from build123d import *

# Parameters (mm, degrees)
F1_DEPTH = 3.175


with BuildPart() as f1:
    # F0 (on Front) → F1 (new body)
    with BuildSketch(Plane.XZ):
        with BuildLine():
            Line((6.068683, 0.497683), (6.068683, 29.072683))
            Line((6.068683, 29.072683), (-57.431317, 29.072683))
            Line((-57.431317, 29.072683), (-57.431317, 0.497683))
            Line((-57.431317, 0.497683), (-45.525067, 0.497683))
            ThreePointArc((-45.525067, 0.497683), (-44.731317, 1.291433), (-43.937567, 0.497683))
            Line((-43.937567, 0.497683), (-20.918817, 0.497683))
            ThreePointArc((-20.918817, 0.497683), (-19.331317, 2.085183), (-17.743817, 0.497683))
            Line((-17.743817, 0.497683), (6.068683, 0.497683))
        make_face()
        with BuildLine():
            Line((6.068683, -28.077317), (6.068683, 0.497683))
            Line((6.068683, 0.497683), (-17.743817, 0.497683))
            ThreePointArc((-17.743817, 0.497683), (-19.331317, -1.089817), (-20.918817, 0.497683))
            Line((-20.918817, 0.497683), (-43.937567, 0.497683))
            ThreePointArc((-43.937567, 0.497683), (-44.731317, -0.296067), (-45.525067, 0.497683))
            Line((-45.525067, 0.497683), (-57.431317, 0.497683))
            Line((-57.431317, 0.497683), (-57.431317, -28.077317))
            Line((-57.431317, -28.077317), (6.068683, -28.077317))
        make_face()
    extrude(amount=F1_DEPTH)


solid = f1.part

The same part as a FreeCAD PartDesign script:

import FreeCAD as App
import Part
import Sketcher

V = App.Vector
Q = App.Units.Quantity

doc = App.newDocument("Part")
body = doc.addObject("PartDesign::Body", "Body")

# Sketch on XZ plane
sketch1 = body.newObject("Sketcher::SketchObject", "Sketch")
sketch1.AttachmentSupport = (doc.getObject("XZ_Plane"), [""])
sketch1.MapMode = "FlatFace"
sketch1.addGeometry([
    Part.LineSegment(V(6.068683, 29.072683, 0), V(-57.431317, 29.072683, 0)),  # 0
    Part.LineSegment(V(-57.431317, 29.072683, 0), V(-57.431317, -28.077317, 0)),  # 1
    Part.LineSegment(V(-57.431317, -28.077317, 0), V(6.068683, -28.077317, 0)),  # 2
    Part.LineSegment(V(6.068683, -28.077317, 0), V(6.068683, 29.072683, 0)),  # 3
    Part.Circle(V(-44.731317, 0.497683, 0), V(0, 0, 1), 0.79375),  # 4
    Part.Circle(V(-19.331317, 0.497683, 0), V(0, 0, 1), 1.5875),  # 5
], False)
sketch1.addConstraint([
    Sketcher.Constraint("Coincident", 0, 2, 1, 1),
    Sketcher.Constraint("Coincident", 1, 2, 2, 1),
    Sketcher.Constraint("Coincident", 2, 2, 3, 1),
    Sketcher.Constraint("Coincident", 3, 2, 0, 1),
    Sketcher.Constraint("Horizontal", 0),
    Sketcher.Constraint("Vertical", 1),
    Sketcher.Constraint("Horizontal", 2),
    Sketcher.Constraint("Vertical", 3),
    Sketcher.Constraint("Horizontal", 4, 3, 5, 3),
    Sketcher.Constraint("Diameter", 4, Q("0.0625 in")),
    Sketcher.Constraint("Diameter", 5, Q("0.125 in")),
    Sketcher.Constraint("DistanceX", 0, 2, 0, 1, Q("2.5 in")),
    Sketcher.Constraint("DistanceX", 4, 3, 5, 3, Q("1 in")),
    Sketcher.Constraint("DistanceX", 5, 3, 2, 2, Q("1 in")),
    Sketcher.Constraint("DistanceY", 1, 2, 1, 1, Q("2.25 in")),
    Sketcher.Constraint("DistanceY", 4, 3, 0, 2, Q("1.125 in")),
    Sketcher.Constraint("DistanceX", 4, 3, -1, 1, 44.731317),
    Sketcher.Constraint("DistanceY", -1, 1, 4, 3, 0.497683),
])
pad1 = body.newObject("PartDesign::Pad", "Pad")
pad1.Profile = sketch1
pad1.Length = Q("0.125 in")

doc.recompute()
